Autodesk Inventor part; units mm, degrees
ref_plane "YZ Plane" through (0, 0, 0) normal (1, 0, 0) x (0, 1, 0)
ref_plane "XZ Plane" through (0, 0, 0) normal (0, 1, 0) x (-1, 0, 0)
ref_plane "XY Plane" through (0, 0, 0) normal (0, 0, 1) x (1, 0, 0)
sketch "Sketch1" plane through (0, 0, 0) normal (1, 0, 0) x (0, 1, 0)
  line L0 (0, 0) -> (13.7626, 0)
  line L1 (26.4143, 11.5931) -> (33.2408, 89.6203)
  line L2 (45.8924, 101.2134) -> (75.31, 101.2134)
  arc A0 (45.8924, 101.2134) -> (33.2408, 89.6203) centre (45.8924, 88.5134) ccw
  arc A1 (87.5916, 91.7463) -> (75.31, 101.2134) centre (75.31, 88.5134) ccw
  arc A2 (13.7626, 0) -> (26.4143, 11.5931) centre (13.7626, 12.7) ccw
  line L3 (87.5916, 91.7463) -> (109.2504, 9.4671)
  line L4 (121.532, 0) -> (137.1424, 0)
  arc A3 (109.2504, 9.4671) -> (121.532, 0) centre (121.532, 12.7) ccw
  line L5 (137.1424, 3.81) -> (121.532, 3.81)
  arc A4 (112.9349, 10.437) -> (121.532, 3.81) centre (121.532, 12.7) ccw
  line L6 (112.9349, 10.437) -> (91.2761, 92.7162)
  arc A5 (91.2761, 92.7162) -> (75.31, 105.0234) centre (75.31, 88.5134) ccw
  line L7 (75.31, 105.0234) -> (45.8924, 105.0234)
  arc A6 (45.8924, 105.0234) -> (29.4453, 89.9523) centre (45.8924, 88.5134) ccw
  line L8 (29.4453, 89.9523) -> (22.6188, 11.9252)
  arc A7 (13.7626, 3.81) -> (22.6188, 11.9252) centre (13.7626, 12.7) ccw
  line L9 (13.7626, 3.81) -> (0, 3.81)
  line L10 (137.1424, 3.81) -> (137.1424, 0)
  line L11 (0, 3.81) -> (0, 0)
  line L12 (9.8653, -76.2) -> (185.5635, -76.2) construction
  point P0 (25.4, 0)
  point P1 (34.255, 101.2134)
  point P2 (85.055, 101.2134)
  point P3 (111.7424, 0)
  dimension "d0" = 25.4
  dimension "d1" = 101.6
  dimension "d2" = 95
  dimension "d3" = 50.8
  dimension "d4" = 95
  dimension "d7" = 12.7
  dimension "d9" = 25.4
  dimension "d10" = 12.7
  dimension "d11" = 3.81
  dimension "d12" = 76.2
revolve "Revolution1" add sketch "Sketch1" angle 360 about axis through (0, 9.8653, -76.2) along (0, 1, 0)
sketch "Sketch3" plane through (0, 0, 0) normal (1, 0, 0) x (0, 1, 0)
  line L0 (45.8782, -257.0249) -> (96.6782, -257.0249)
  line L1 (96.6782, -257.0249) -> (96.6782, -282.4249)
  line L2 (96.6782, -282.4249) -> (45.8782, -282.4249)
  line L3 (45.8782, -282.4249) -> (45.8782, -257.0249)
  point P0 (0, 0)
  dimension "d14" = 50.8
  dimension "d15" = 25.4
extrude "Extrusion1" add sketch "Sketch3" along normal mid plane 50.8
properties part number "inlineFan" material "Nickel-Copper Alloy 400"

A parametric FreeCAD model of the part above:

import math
import FreeCAD as App
import Part
import Sketcher
from FreeCAD import Vector
Q = App.Units.Quantity


def add_polygon(sketch, points):
    """Adds a closed chain of lines whose ends are joined by coincident constraints."""
    first, n = sketch.GeometryCount, len(points)
    for a, b in zip(points, points[1:] + points[:1]):
        sketch.addGeometry(Part.LineSegment(App.Vector(*a, 0), App.Vector(*b, 0)), False)
    for i in range(n):
        sketch.addConstraint(Sketcher.Constraint("Coincident", first + i, 2, first + (i + 1) % n, 1))

doc = App.newDocument("Part")
body = doc.addObject("PartDesign::Body", "Body")

# Sketch on YZ plane
sketch1 = body.newObject("Sketcher::SketchObject", "Sketch")
sketch1.AttachmentSupport = (doc.getObject("YZ_Plane"), [""])
sketch1.MapMode = "FlatFace"
sketch1.addGeometry(Part.LineSegment(Vector(0, 3.81, 0), Vector(0, 0, 0)), False)
sketch1.addGeometry(Part.LineSegment(Vector(0, 0, 0), Vector(13.7626, 0, 0)), False)
sketch1.addGeometry(Part.ArcOfCircle(Part.Circle(Vector(13.7626, 12.7, 0), Vector(0, 0, 1), 12.7), math.radians(-90), math.radians(-5.000088)), False)
sketch1.addGeometry(Part.LineSegment(Vector(26.4143, 11.5931, 0), Vector(33.2408, 89.6203, 0)), False)
sketch1.addGeometry(Part.ArcOfCircle(Part.Circle(Vector(45.8924, 88.5134, 0), Vector(0, 0, 1), 12.7), math.radians(90), math.radians(174.999872)), False)
sketch1.addGeometry(Part.LineSegment(Vector(45.8924, 101.2134, 0), Vector(75.31, 101.2134, 0)), False)
sketch1.addGeometry(Part.ArcOfCircle(Part.Circle(Vector(75.31, 88.5134, 0), Vector(0, 0, 1), 12.699974), math.radians(14.747489), math.radians(90)), False)
sketch1.addGeometry(Part.LineSegment(Vector(87.5916, 91.7463, 0), Vector(109.2504, 9.4671, 0)), False)
sketch1.addGeometry(Part.ArcOfCircle(Part.Circle(Vector(121.532, 12.7, 0), Vector(0, 0, 1), 12.699974), math.radians(-165.252511), math.radians(-90)), False)
sketch1.addGeometry(Part.LineSegment(Vector(121.532, 0, 0), Vector(137.1424, 0, 0)), False)
sketch1.addGeometry(Part.LineSegment(Vector(137.1424, 0, 0), Vector(137.1424, 3.81, 0)), False)
sketch1.addGeometry(Part.LineSegment(Vector(137.1424, 3.81, 0), Vector(121.532, 3.81, 0)), False)
sketch1.addGeometry(Part.ArcOfCircle(Part.Circle(Vector(121.532, 12.7, 0), Vector(0, 0, 1), 8.889955), math.radians(-165.252665), math.radians(-90)), False)
sketch1.addGeometry(Part.LineSegment(Vector(112.9349, 10.437, 0), Vector(91.2761, 92.7162, 0)), False)
sketch1.addGeometry(Part.ArcOfCircle(Part.Circle(Vector(75.31, 88.5134, 0), Vector(0, 0, 1), 16.509993), math.radians(14.747573), math.radians(90)), False)
sketch1.addGeometry(Part.LineSegment(Vector(75.31, 105.0234, 0), Vector(45.8924, 105.0234, 0)), False)
sketch1.addGeometry(Part.ArcOfCircle(Part.Circle(Vector(45.8924, 88.5134, 0), Vector(0, 0, 1), 16.51), math.radians(90), math.radians(175.00012)), False)
sketch1.addGeometry(Part.LineSegment(Vector(29.4453, 89.9523, 0), Vector(22.6188, 11.9252, 0)), False)
sketch1.addGeometry(Part.ArcOfCircle(Part.Circle(Vector(13.7626, 12.7, 0), Vector(0, 0, 1), 8.89), math.radians(-90), math.radians(-4.99989)), False)
sketch1.addGeometry(Part.LineSegment(Vector(13.7626, 3.81, 0), Vector(0, 3.81, 0)), False)
sketch1.addGeometry(Part.LineSegment(Vector(0, -76.2, 0), Vector(137.1424, -76.2, 0)), True)  # axis
sketch1.addConstraint(Sketcher.Constraint("Coincident", 0, 2, 1, 1))
sketch1.addConstraint(Sketcher.Constraint("Tangent", 1, 2, 2, 1))
sketch1.addConstraint(Sketcher.Constraint("Tangent", 2, 2, 3, 1))
sketch1.addConstraint(Sketcher.Constraint("Tangent", 3, 2, 4, 2))
sketch1.addConstraint(Sketcher.Constraint("Tangent", 4, 1, 5, 1))
sketch1.addConstraint(Sketcher.Constraint("Tangent", 5, 2, 6, 2))
sketch1.addConstraint(Sketcher.Constraint("Tangent", 6, 1, 7, 1))
sketch1.addConstraint(Sketcher.Constraint("Tangent", 7, 2, 8, 1))
sketch1.addConstraint(Sketcher.Constraint("Tangent", 8, 2, 9, 1))
sketch1.addConstraint(Sketcher.Constraint("Coincident", 9, 2, 10, 1))
sketch1.addConstraint(Sketcher.Constraint("Coincident", 10, 2, 11, 1))
sketch1.addConstraint(Sketcher.Constraint("Tangent", 11, 2, 12, 2))
sketch1.addConstraint(Sketcher.Constraint("Tangent", 12, 1, 13, 1))
sketch1.addConstraint(Sketcher.Constraint("Tangent", 13, 2, 14, 1))
sketch1.addConstraint(Sketcher.Constraint("Tangent", 14, 2, 15, 1))
sketch1.addConstraint(Sketcher.Constraint("Tangent", 15, 2, 16, 1))
sketch1.addConstraint(Sketcher.Constraint("Tangent", 16, 2, 17, 1))
sketch1.addConstraint(Sketcher.Constraint("Tangent", 17, 2, 18, 2))
sketch1.addConstraint(Sketcher.Constraint("Tangent", 18, 1, 19, 1))
sketch1.addConstraint(Sketcher.Constraint("Coincident", 19, 2, 0, 1))
sketch1.addConstraint(Sketcher.Constraint("Vertical", 0))
sketch1.addConstraint(Sketcher.Constraint("Horizontal", 1))
sketch1.addConstraint(Sketcher.Constraint("Horizontal", 5))
sketch1.addConstraint(Sketcher.Constraint("Horizontal", 9))
sketch1.addConstraint(Sketcher.Constraint("Vertical", 10))
sketch1.addConstraint(Sketcher.Constraint("Horizontal", 11))
sketch1.addConstraint(Sketcher.Constraint("Horizontal", 15))
sketch1.addConstraint(Sketcher.Constraint("Horizontal", 19))
sketch1.addConstraint(Sketcher.Constraint("Horizontal", 20))
sketch1.addConstraint(Sketcher.Constraint("Coincident", 0, 2, -1, 1))
sketch1.addConstraint(Sketcher.Constraint("Coincident", 12, 3, 8, 3))
sketch1.addConstraint(Sketcher.Constraint("Coincident", 14, 3, 6, 3))
sketch1.addConstraint(Sketcher.Constraint("Coincident", 16, 3, 4, 3))
sketch1.addConstraint(Sketcher.Constraint("Coincident", 18, 3, 2, 3))
sketch1.addConstraint(Sketcher.Constraint("Equal", 2, 4))
sketch1.addConstraint(Sketcher.Constraint("Equal", 4, 6))
sketch1.addConstraint(Sketcher.Constraint("Equal", 6, 8))
sketch1.addConstraint(Sketcher.Constraint("Equal", 12, 18))
sketch1.addConstraint(Sketcher.Constraint("PointOnObject", 8, 2, -1))
sketch1.addConstraint(Sketcher.Constraint("PointOnObject", 20, 1, -2))
sketch1.addConstraint(Sketcher.Constraint("Parallel", 7, 13))
sketch1.addConstraint(Sketcher.Constraint("Vertical", 10, 2, 20, 2))
sketch1.addConstraint(Sketcher.Constraint("Radius", 2, Q("0.5 in")))
sketch1.addConstraint(Sketcher.Constraint("DistanceY", 20, 1, -1, 1, Q("3 in")))
sketch1.addConstraint(Sketcher.Constraint("Angle", 17, Q("-95 deg")))
sketch1.addConstraint(Sketcher.Constraint("DistanceY", 0, 2, 0, 1, Q("0.15 in")))
sketch1.addConstraint(Sketcher.Constraint("DistanceX", 20, 1, 20, 2, Q("5.3993 in")))
sketch1.addConstraint(Sketcher.Constraint("Distance", 7, Q("3.3497 in")))
sketch1.addConstraint(Sketcher.Constraint("DistanceX", 1, 1, 1, 2, 13.7626))
sketch1.addConstraint(Sketcher.Constraint("DistanceX", 5, 1, 5, 2, 29.4176))
sketch1.addConstraint(Sketcher.Constraint("DistanceX", 9, 1, 9, 2, 15.6104))
revolution = body.newObject("PartDesign::Revolution", "Revolution")
revolution.Profile = sketch1
revolution.ReferenceAxis = (sketch1, ["Axis0"])
revolution.Angle = 360

# Sketch on YZ plane
sketch2 = body.newObject("Sketcher::SketchObject", "Sketch001")
sketch2.AttachmentSupport = (doc.getObject("YZ_Plane"), [""])
sketch2.MapMode = "FlatFace"
add_polygon(sketch2, [(96.6782, -257.0249), (45.8782, -257.0249), (45.8782, -282.4249), (96.6782, -282.4249)])  # lines 0-3
sketch2.addConstraint(Sketcher.Constraint("Horizontal", 0))
sketch2.addConstraint(Sketcher.Constraint("Vertical", 1))
sketch2.addConstraint(Sketcher.Constraint("Horizontal", 2))
sketch2.addConstraint(Sketcher.Constraint("Vertical", 3))
sketch2.addConstraint(Sketcher.Constraint("DistanceX", 0, 2, 0, 1, Q("2 in")))
sketch2.addConstraint(Sketcher.Constraint("DistanceY", 1, 2, 1, 1, Q("1 in")))
sketch2.addConstraint(Sketcher.Constraint("DistanceY", 0, 2, -1, 1, Q("10.1191 in")))
sketch2.addConstraint(Sketcher.Constraint("DistanceX", -1, 1, 0, 2, 45.8782))
pad1 = body.newObject("PartDesign::Pad", "Pad")
pad1.Profile = sketch2
pad1.Length = Q("2 in")
pad1.Midplane = True

doc.recompute()
